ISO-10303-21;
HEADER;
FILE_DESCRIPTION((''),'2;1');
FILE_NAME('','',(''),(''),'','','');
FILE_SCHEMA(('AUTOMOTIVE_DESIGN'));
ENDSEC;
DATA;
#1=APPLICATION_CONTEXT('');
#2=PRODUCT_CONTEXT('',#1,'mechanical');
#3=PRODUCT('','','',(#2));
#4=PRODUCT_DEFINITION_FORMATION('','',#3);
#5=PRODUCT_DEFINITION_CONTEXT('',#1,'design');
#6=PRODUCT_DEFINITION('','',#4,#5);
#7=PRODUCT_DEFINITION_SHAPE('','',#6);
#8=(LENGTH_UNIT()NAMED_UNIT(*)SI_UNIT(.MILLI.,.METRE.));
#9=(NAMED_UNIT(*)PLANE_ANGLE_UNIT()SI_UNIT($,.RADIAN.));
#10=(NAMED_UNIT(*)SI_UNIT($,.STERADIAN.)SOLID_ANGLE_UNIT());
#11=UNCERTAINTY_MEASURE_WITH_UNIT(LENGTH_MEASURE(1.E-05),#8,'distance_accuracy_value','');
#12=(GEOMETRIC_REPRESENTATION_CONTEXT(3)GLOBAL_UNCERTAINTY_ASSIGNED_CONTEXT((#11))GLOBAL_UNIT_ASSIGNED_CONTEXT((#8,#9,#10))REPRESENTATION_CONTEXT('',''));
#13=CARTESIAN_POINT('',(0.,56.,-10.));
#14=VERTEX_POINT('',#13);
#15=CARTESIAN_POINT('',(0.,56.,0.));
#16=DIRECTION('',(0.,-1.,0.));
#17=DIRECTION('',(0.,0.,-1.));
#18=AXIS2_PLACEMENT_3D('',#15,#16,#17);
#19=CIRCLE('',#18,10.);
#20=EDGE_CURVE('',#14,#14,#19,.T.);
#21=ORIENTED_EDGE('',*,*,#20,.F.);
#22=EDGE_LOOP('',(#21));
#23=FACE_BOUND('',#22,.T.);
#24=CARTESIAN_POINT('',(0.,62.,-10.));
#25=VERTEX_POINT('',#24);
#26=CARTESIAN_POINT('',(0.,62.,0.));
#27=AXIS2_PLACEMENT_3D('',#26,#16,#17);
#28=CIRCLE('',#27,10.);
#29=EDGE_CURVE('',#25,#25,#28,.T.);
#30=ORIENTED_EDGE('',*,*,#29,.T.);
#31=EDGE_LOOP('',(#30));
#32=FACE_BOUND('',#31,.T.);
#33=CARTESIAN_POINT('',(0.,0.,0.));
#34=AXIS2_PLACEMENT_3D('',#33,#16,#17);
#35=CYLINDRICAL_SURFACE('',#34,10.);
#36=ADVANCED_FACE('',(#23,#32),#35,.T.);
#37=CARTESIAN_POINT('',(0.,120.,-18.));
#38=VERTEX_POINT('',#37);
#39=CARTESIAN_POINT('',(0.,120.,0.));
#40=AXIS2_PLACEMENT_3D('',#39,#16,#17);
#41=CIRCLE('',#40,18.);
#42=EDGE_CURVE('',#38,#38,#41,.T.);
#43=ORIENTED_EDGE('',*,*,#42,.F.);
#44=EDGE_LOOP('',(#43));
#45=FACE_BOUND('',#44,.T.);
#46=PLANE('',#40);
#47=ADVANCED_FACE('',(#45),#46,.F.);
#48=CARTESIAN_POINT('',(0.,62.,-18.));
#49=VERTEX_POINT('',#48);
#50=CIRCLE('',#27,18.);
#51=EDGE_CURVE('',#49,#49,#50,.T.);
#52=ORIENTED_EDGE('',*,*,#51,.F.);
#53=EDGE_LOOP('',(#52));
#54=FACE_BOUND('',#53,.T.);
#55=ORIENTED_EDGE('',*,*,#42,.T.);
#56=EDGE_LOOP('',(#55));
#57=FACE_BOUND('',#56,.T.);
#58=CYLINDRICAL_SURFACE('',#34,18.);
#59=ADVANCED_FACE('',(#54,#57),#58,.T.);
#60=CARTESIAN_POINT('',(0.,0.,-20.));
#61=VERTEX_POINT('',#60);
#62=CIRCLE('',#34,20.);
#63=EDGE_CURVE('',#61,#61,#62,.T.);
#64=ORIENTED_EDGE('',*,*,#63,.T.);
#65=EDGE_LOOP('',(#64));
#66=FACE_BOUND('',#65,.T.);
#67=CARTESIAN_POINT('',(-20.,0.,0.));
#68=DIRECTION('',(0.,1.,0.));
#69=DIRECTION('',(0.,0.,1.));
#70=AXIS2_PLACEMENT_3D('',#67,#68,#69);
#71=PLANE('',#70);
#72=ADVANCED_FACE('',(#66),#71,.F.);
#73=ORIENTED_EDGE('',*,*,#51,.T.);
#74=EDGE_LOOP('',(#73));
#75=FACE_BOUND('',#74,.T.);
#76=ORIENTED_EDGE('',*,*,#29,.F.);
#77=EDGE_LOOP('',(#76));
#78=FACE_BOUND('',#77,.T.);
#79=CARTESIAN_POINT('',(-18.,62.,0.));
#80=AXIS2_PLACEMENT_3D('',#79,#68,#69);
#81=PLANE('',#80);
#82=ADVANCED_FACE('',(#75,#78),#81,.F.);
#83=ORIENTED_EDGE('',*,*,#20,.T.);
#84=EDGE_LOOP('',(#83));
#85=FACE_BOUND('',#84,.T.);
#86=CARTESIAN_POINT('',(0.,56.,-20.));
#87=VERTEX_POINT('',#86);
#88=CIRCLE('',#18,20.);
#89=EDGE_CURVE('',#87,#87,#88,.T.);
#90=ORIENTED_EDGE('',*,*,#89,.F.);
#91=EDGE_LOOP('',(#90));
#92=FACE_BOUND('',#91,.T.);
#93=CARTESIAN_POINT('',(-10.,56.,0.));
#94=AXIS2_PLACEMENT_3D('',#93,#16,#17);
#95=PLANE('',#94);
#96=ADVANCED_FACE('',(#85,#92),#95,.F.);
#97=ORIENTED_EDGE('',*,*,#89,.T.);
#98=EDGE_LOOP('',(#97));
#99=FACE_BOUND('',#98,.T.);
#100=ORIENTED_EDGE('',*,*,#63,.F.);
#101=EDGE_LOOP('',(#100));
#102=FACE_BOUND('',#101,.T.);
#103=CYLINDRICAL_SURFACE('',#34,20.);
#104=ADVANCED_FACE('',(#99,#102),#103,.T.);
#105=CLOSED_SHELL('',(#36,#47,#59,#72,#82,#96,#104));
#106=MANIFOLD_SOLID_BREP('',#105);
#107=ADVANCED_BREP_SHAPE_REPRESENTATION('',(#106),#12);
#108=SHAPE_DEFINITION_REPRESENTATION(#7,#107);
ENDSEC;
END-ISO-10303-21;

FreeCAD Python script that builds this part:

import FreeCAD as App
import Part
import Sketcher

V = App.Vector
Q = App.Units.Quantity


def add_polygon(sketch, points):
    """Adds a closed chain of lines whose ends are joined by coincident constraints."""
    first, n = sketch.GeometryCount, len(points)
    for a, b in zip(points, points[1:] + points[:1]):
        sketch.addGeometry(Part.LineSegment(App.Vector(*a, 0), App.Vector(*b, 0)), False)
    for i in range(n):
        sketch.addConstraint(Sketcher.Constraint("Coincident", first + i, 2, first + (i + 1) % n, 1))

doc = App.newDocument("Part")
body = doc.addObject("PartDesign::Body", "Body")

# Sketch on XY plane
sketch1 = body.newObject("Sketcher::SketchObject", "Sketch")
sketch1.AttachmentSupport = (doc.getObject("XY_Plane"), [""])
sketch1.MapMode = "FlatFace"
add_polygon(sketch1, [(0, 0), (0, 120), (-18, 120), (-18, 62), (-10, 62), (-10, 56), (-20, 56), (-20, 0)])  # lines 0-7
sketch1.addConstraint([
    Sketcher.Constraint("Vertical", 0),
    Sketcher.Constraint("Horizontal", 1),
    Sketcher.Constraint("Vertical", 2),
    Sketcher.Constraint("Horizontal", 3),
    Sketcher.Constraint("Vertical", 4),
    Sketcher.Constraint("Horizontal", 5),
    Sketcher.Constraint("Vertical", 6),
    Sketcher.Constraint("Horizontal", 7),
    Sketcher.Constraint("Coincident", 7, 2, -1, 1),
    Sketcher.Constraint("DistanceX", 1, 2, 1, 1, Q("18 mm")),
    Sketcher.Constraint("DistanceX", 3, 1, 3, 2, Q("8 mm")),
    Sketcher.Constraint("DistanceX", 5, 2, 5, 1, Q("10 mm")),
    Sketcher.Constraint("DistanceY", 0, 1, 0, 2, Q("120 mm")),
    Sketcher.Constraint("DistanceY", 2, 2, 2, 1, Q("58 mm")),
    Sketcher.Constraint("DistanceY", 4, 2, 4, 1, Q("6 mm")),
])
revolution = body.newObject("PartDesign::Revolution", "Revolution")
revolution.Profile = sketch1
revolution.ReferenceAxis = (sketch1, ["V_Axis"])
revolution.Angle = 360

doc.recompute()
